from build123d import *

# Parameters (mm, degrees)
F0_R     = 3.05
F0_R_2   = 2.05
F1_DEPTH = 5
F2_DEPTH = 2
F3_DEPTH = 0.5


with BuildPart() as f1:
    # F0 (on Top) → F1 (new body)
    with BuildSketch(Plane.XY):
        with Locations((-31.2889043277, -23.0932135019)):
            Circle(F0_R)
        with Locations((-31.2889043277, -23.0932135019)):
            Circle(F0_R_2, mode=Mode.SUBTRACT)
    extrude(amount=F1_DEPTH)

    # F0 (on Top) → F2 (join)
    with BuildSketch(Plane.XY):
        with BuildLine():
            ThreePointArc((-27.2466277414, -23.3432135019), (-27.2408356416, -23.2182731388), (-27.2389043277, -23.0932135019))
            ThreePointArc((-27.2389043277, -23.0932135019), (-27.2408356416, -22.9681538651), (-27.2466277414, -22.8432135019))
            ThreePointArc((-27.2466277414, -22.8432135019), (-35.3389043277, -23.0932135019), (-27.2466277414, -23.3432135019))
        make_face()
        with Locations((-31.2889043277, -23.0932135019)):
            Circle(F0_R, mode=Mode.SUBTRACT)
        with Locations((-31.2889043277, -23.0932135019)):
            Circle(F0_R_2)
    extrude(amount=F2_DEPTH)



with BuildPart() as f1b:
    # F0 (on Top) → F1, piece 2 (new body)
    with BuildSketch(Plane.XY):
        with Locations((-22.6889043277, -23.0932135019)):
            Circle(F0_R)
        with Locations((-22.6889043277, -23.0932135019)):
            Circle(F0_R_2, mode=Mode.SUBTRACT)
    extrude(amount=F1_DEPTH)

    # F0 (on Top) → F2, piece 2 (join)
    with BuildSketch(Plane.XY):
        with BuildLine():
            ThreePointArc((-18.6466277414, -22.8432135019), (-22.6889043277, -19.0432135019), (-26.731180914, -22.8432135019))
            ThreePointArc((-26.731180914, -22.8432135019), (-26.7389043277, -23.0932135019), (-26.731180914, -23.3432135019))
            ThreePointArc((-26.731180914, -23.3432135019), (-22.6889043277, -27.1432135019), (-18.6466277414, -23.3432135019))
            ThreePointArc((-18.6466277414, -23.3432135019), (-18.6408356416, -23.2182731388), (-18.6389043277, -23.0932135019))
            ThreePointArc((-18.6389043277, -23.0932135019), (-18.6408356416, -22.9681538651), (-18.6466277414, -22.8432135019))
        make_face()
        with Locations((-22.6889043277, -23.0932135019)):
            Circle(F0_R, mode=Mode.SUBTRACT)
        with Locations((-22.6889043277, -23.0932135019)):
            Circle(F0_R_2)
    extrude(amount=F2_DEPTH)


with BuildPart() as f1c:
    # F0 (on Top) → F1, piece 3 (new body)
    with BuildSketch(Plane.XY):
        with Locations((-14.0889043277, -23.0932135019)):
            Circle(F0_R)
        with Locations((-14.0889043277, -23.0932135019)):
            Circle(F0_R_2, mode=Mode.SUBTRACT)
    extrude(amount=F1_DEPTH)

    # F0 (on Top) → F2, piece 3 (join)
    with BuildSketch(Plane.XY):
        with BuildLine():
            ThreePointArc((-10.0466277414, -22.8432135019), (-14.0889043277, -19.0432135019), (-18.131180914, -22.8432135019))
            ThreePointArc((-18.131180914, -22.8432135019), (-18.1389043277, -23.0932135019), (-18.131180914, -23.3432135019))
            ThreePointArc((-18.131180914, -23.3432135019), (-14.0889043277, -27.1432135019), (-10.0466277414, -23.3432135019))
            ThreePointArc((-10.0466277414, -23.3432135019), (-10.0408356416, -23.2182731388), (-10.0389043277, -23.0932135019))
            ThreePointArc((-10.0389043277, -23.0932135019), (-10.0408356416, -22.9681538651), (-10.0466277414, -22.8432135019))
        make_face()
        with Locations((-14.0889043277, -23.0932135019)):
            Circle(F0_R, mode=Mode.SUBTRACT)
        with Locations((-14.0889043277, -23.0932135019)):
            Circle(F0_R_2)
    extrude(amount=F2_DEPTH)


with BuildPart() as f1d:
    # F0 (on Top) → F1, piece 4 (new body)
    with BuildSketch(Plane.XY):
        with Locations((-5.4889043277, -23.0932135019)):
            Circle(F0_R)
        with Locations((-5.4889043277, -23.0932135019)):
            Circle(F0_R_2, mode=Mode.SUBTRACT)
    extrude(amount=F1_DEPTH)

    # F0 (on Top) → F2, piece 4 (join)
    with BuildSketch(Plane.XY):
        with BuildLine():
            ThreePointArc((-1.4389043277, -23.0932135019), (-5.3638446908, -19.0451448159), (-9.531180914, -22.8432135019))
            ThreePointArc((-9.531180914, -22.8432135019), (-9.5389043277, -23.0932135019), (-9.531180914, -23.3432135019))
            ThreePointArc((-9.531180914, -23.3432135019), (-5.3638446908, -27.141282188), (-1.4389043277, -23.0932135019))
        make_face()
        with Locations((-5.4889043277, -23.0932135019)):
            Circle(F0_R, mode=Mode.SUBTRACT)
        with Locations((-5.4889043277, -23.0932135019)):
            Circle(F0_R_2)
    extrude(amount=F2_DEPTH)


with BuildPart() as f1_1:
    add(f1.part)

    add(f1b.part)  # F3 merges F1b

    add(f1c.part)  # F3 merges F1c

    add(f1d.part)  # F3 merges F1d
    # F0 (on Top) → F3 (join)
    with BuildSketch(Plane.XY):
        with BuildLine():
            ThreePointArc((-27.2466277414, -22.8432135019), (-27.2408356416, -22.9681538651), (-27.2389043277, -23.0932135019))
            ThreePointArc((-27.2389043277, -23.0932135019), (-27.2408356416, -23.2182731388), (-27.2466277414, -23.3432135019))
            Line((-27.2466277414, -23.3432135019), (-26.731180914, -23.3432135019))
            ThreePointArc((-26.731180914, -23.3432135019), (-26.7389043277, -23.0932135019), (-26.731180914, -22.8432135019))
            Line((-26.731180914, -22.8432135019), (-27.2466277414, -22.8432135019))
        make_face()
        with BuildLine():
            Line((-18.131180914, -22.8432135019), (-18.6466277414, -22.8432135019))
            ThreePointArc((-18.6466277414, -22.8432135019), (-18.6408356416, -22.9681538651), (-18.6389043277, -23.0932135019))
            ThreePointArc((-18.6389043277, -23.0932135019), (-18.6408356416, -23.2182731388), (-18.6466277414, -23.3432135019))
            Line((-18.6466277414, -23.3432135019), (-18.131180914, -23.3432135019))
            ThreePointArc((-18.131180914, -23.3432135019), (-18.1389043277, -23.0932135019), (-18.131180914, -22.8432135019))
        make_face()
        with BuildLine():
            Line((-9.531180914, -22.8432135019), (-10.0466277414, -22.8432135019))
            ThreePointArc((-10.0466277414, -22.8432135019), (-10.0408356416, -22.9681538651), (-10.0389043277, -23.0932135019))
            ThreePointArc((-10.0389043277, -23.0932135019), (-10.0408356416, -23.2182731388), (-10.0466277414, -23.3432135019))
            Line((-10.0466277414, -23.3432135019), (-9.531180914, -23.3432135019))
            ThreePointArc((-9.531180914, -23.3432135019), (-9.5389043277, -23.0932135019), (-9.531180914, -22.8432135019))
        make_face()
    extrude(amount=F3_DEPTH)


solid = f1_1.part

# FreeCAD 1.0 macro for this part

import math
import FreeCAD as App
import Part
import Sketcher
Q = App.Units.Quantity

doc = App.newDocument("Part")
body = doc.addObject("PartDesign::Body", "Body")

sketch1 = body.newObject("Sketcher::SketchObject", "Sketch")
sketch1.AttachmentSupport = (doc.getObject("XY_Plane"), [""])
sketch1.MapMode = "FlatFace"
sketch1.addGeometry(Part.Circle(App.Vector(-31.3, -23.1, 0), App.Vector(0, 0, 1), 3), False)
sketch1.addGeometry(Part.Circle(App.Vector(-31.3, -23.1, 0), App.Vector(0, 0, 1), 2), False)
sketch1.addConstraint(Sketcher.Constraint("Coincident", 1, 3, 0, 3))
sketch1.addConstraint(Sketcher.Constraint("Diameter", 0, Q("6.1 mm")))
sketch1.addConstraint(Sketcher.Constraint("Diameter", 1, Q("4.1 mm")))
sketch1.addConstraint(Sketcher.Constraint("DistanceX", 0, 3, -1, 1, Q("31.288904 mm")))
sketch1.addConstraint(Sketcher.Constraint("DistanceY", 0, 3, -1, 1, Q("23.093214 mm")))
pad1 = body.newObject("PartDesign::Pad", "Pad")
pad1.Profile = sketch1
pad1.Length = 5

sketch2 = body.newObject("Sketcher::SketchObject", "Sketch001")
sketch2.AttachmentSupport = (doc.getObject("XY_Plane"), [""])
sketch2.MapMode = "FlatFace"
sketch2.addGeometry(Part.ArcOfCircle(Part.Circle(App.Vector(-31.29, -23.09, 0), App.Vector(0, 0, 1), 4.05), math.radians(-3.54), math.radians(0)), False)
sketch2.addGeometry(Part.ArcOfCircle(Part.Circle(App.Vector(-31.29, -23.09, 0), App.Vector(0, 0, 1), 4.05), math.radians(0), math.radians(3.54)), False)
sketch2.addGeometry(Part.ArcOfCircle(Part.Circle(App.Vector(-31.29, -23.09, 0), App.Vector(0, 0, 1), 4.05), math.radians(4), math.radians(356)), False)
sketch2.addGeometry(Part.Circle(App.Vector(-31.29, -23.09, 0), App.Vector(0, 0, 1), 3.05), False)
sketch2.addGeometry(Part.Circle(App.Vector(-31.29, -23.09, 0), App.Vector(0, 0, 1), 2.05), False)
sketch2.addConstraint(Sketcher.Constraint("Tangent", 0, 2, 1, 1))
sketch2.addConstraint(Sketcher.Constraint("Tangent", 1, 2, 2, 1))
sketch2.addConstraint(Sketcher.Constraint("Tangent", 2, 2, 0, 1))
sketch2.addConstraint(Sketcher.Constraint("Coincident", 3, 3, 0, 3))
sketch2.addConstraint(Sketcher.Constraint("Coincident", 4, 3, 0, 3))
sketch2.addConstraint(Sketcher.Constraint("Horizontal", 4, 3, 0, 2))
sketch2.addConstraint(Sketcher.Constraint("Vertical", 1, 2, 2, 2))
sketch2.addConstraint(Sketcher.Constraint("Diameter", 3, Q("6.1 mm")))
sketch2.addConstraint(Sketcher.Constraint("Diameter", 4, Q("4.1 mm")))
sketch2.addConstraint(Sketcher.Constraint("Radius", 0, Q("4.05 mm")))
sketch2.addConstraint(Sketcher.Constraint("DistanceY", 2, 2, 1, 2, Q("0.5 mm")))
sketch2.addConstraint(Sketcher.Constraint("DistanceX", 0, 3, -1, 1, Q("31.288904 mm")))
sketch2.addConstraint(Sketcher.Constraint("DistanceY", 0, 3, -1, 1, Q("23.093214 mm")))
pad2 = body.newObject("PartDesign::Pad", "Pad001")
pad2.Profile = sketch2
pad2.Length = 2
body2 = doc.addObject("PartDesign::Body", "Body001")

sketch3 = body2.newObject("Sketcher::SketchObject", "Sketch002")
sketch3.AttachmentSupport = (doc.getObject("XY_Plane001"), [""])
sketch3.MapMode = "FlatFace"
sketch3.addGeometry(Part.Circle(App.Vector(-22.7, -23.1, 0), App.Vector(0, 0, 1), 3), False)
sketch3.addGeometry(Part.Circle(App.Vector(-22.7, -23.1, 0), App.Vector(0, 0, 1), 2), False)
sketch3.addConstraint(Sketcher.Constraint("Coincident", 1, 3, 0, 3))
sketch3.addConstraint(Sketcher.Constraint("Diameter", 0, Q("6.1 mm")))
sketch3.addConstraint(Sketcher.Constraint("Diameter", 1, Q("4.1 mm")))
sketch3.addConstraint(Sketcher.Constraint("DistanceX", 0, 3, -1, 1, Q("22.688904 mm")))
sketch3.addConstraint(Sketcher.Constraint("DistanceY", 0, 3, -1, 1, Q("23.093214 mm")))
pad3 = body2.newObject("PartDesign::Pad", "Pad002")
pad3.Profile = sketch3
pad3.Length = 5

sketch4 = body2.newObject("Sketcher::SketchObject", "Sketch003")
sketch4.AttachmentSupport = (doc.getObject("XY_Plane001"), [""])
sketch4.MapMode = "FlatFace"
sketch4.addGeometry(Part.ArcOfCircle(Part.Circle(App.Vector(-22.69, -23.09, 0), App.Vector(0, 0, 1), 4.05), math.radians(4), math.radians(176)), False)
sketch4.addGeometry(Part.ArcOfCircle(Part.Circle(App.Vector(-22.69, -23.09, 0), App.Vector(0, 0, 1), 4.05), math.radians(176.46), math.radians(183.54)), False)
sketch4.addGeometry(Part.ArcOfCircle(Part.Circle(App.Vector(-22.69, -23.09, 0), App.Vector(0, 0, 1), 4.05), math.radians(-176), math.radians(-4)), False)
sketch4.addGeometry(Part.ArcOfCircle(Part.Circle(App.Vector(-22.69, -23.09, 0), App.Vector(0, 0, 1), 4.05), math.radians(-3.54), math.radians(0)), False)
sketch4.addGeometry(Part.ArcOfCircle(Part.Circle(App.Vector(-22.69, -23.09, 0), App.Vector(0, 0, 1), 4.05), math.radians(0), math.radians(3.54)), False)
sketch4.addGeometry(Part.Circle(App.Vector(-22.69, -23.09, 0), App.Vector(0, 0, 1), 3.05), False)
sketch4.addGeometry(Part.Circle(App.Vector(-22.69, -23.09, 0), App.Vector(0, 0, 1), 2.05), False)
sketch4.addConstraint(Sketcher.Constraint("Tangent", 0, 2, 1, 1))
sketch4.addConstraint(Sketcher.Constraint("Tangent", 1, 2, 2, 1))
sketch4.addConstraint(Sketcher.Constraint("Tangent", 2, 2, 3, 1))
sketch4.addConstraint(Sketcher.Constraint("Tangent", 3, 2, 4, 1))
sketch4.addConstraint(Sketcher.Constraint("Tangent", 4, 2, 0, 1))
sketch4.addConstraint(Sketcher.Constraint("Coincident", 3, 3, 0, 3))
sketch4.addConstraint(Sketcher.Constraint("Coincident", 5, 3, 0, 3))
sketch4.addConstraint(Sketcher.Constraint("Coincident", 6, 3, 0, 3))
sketch4.addConstraint(Sketcher.Constraint("Horizontal", 1, 2, 2, 2))
sketch4.addConstraint(Sketcher.Constraint("Horizontal", 6, 3, 3, 2))
sketch4.addConstraint(Sketcher.Constraint("Horizontal", 0, 2, 4, 2))
sketch4.addConstraint(Sketcher.Constraint("Vertical", 0, 2, 1, 2))
sketch4.addConstraint(Sketcher.Constraint("Diameter", 5, Q("6.1 mm")))
sketch4.addConstraint(Sketcher.Constraint("Diameter", 6, Q("4.1 mm")))
sketch4.addConstraint(Sketcher.Constraint("Radius", 0, Q("4.05 mm")))
sketch4.addConstraint(Sketcher.Constraint("DistanceY", 1, 2, 0, 2, Q("0.5 mm")))
sketch4.addConstraint(Sketcher.Constraint("DistanceX", 0, 2, -1, 1, Q("26.731181 mm")))
sketch4.addConstraint(Sketcher.Constraint("DistanceY", 0, 3, -1, 1, Q("23.093214 mm")))
pad4 = body2.newObject("PartDesign::Pad", "Pad003")
pad4.Profile = sketch4
pad4.Length = 2
body3 = doc.addObject("PartDesign::Body", "Body002")

sketch5 = body3.newObject("Sketcher::SketchObject", "Sketch004")
sketch5.AttachmentSupport = (doc.getObject("XY_Plane002"), [""])
sketch5.MapMode = "FlatFace"
sketch5.addGeometry(Part.Circle(App.Vector(-14.1, -23.1, 0), App.Vector(0, 0, 1), 3), False)
sketch5.addGeometry(Part.Circle(App.Vector(-14.1, -23.1, 0), App.Vector(0, 0, 1), 2), False)
sketch5.addConstraint(Sketcher.Constraint("Coincident", 1, 3, 0, 3))
sketch5.addConstraint(Sketcher.Constraint("Diameter", 0, Q("6.1 mm")))
sketch5.addConstraint(Sketcher.Constraint("Diameter", 1, Q("4.1 mm")))
sketch5.addConstraint(Sketcher.Constraint("DistanceX", 0, 3, -1, 1, Q("14.088904 mm")))
sketch5.addConstraint(Sketcher.Constraint("DistanceY", 0, 3, -1, 1, Q("23.093214 mm")))
pad5 = body3.newObject("PartDesign::Pad", "Pad004")
pad5.Profile = sketch5
pad5.Length = 5

sketch6 = body3.newObject("Sketcher::SketchObject", "Sketch005")
sketch6.AttachmentSupport = (doc.getObject("XY_Plane002"), [""])
sketch6.MapMode = "FlatFace"
sketch6.addGeometry(Part.ArcOfCircle(Part.Circle(App.Vector(-14.09, -23.09, 0), App.Vector(0, 0, 1), 4.05), math.radians(4), math.radians(176)), False)
sketch6.addGeometry(Part.ArcOfCircle(Part.Circle(App.Vector(-14.09, -23.09, 0), App.Vector(0, 0, 1), 4.05), math.radians(176.46), math.radians(183.54)), False)
sketch6.addGeometry(Part.ArcOfCircle(Part.Circle(App.Vector(-14.09, -23.09, 0), App.Vector(0, 0, 1), 4.05), math.radians(-176), math.radians(-4)), False)
sketch6.addGeometry(Part.ArcOfCircle(Part.Circle(App.Vector(-14.09, -23.09, 0), App.Vector(0, 0, 1), 4.05), math.radians(-3.54), math.radians(0)), False)
sketch6.addGeometry(Part.ArcOfCircle(Part.Circle(App.Vector(-14.09, -23.09, 0), App.Vector(0, 0, 1), 4.05), math.radians(0), math.radians(3.54)), False)
sketch6.addGeometry(Part.Circle(App.Vector(-14.09, -23.09, 0), App.Vector(0, 0, 1), 3.05), False)
sketch6.addGeometry(Part.Circle(App.Vector(-14.09, -23.09, 0), App.Vector(0, 0, 1), 2.05), False)
sketch6.addConstraint(Sketcher.Constraint("Tangent", 0, 2, 1, 1))
sketch6.addConstraint(Sketcher.Constraint("Tangent", 1, 2, 2, 1))
sketch6.addConstraint(Sketcher.Constraint("Tangent", 2, 2, 3, 1))
sketch6.addConstraint(Sketcher.Constraint("Tangent", 3, 2, 4, 1))
sketch6.addConstraint(Sketcher.Constraint("Tangent", 4, 2, 0, 1))
sketch6.addConstraint(Sketcher.Constraint("Coincident", 3, 3, 0, 3))
sketch6.addConstraint(Sketcher.Constraint("Coincident", 5, 3, 0, 3))
sketch6.addConstraint(Sketcher.Constraint("Coincident", 6, 3, 0, 3))
sketch6.addConstraint(Sketcher.Constraint("Horizontal", 1, 2, 2, 2))
sketch6.addConstraint(Sketcher.Constraint("Horizontal", 6, 3, 3, 2))
sketch6.addConstraint(Sketcher.Constraint("Horizontal", 0, 2, 4, 2))
sketch6.addConstraint(Sketcher.Constraint("Vertical", 0, 2, 1, 2))
sketch6.addConstraint(Sketcher.Constraint("Diameter", 5, Q("6.1 mm")))
sketch6.addConstraint(Sketcher.Constraint("Diameter", 6, Q("4.1 mm")))
sketch6.addConstraint(Sketcher.Constraint("Radius", 0, Q("4.05 mm")))
sketch6.addConstraint(Sketcher.Constraint("DistanceY", 1, 2, 0, 2, Q("0.5 mm")))
sketch6.addConstraint(Sketcher.Constraint("DistanceX", 0, 2, -1, 1, Q("18.131181 mm")))
sketch6.addConstraint(Sketcher.Constraint("DistanceY", 0, 3, -1, 1, Q("23.093214 mm")))
pad6 = body3.newObject("PartDesign::Pad", "Pad005")
pad6.Profile = sketch6
pad6.Length = 2
body4 = doc.addObject("PartDesign::Body", "Body003")

sketch7 = body4.newObject("Sketcher::SketchObject", "Sketch006")
sketch7.AttachmentSupport = (doc.getObject("XY_Plane003"), [""])
sketch7.MapMode = "FlatFace"
sketch7.addGeometry(Part.Circle(App.Vector(-5.5, -23.1, 0), App.Vector(0, 0, 1), 3), False)
sketch7.addGeometry(Part.Circle(App.Vector(-5.5, -23.1, 0), App.Vector(0, 0, 1), 2), False)
sketch7.addConstraint(Sketcher.Constraint("Coincident", 1, 3, 0, 3))
sketch7.addConstraint(Sketcher.Constraint("Diameter", 0, Q("6.1 mm")))
sketch7.addConstraint(Sketcher.Constraint("Diameter", 1, Q("4.1 mm")))
sketch7.addConstraint(Sketcher.Constraint("DistanceX", 0, 3, -1, 1, Q("5.488904 mm")))
sketch7.addConstraint(Sketcher.Constraint("DistanceY", 0, 3, -1, 1, Q("23.093214 mm")))
pad7 = body4.newObject("PartDesign::Pad", "Pad006")
pad7.Profile = sketch7
pad7.Length = 5

sketch8 = body4.newObject("Sketcher::SketchObject", "Sketch007")
sketch8.AttachmentSupport = (doc.getObject("XY_Plane003"), [""])
sketch8.MapMode = "FlatFace"
sketch8.addGeometry(Part.ArcOfCircle(Part.Circle(App.Vector(-5.5, -23.1, 0), App.Vector(0, 0, 1), 4), math.radians(0), math.radians(176)), False)
sketch8.addGeometry(Part.ArcOfCircle(Part.Circle(App.Vector(-5.5, -23.1, 0), App.Vector(0, 0, 1), 4.1), math.radians(176.46), math.radians(183.54)), False)
sketch8.addGeometry(Part.ArcOfCircle(Part.Circle(App.Vector(-5.5, -23.1, 0), App.Vector(0, 0, 1), 4), math.radians(-176), math.radians(0)), False)
sketch8.addGeometry(Part.Circle(App.Vector(-5.5, -23.1, 0), App.Vector(0, 0, 1), 3), False)
sketch8.addGeometry(Part.Circle(App.Vector(-5.5, -23.1, 0), App.Vector(0, 0, 1), 2), False)
sketch8.addConstraint(Sketcher.Constraint("Tangent", 0, 2, 1, 1))
sketch8.addConstraint(Sketcher.Constraint("Tangent", 1, 2, 2, 1))
sketch8.addConstraint(Sketcher.Constraint("Tangent", 2, 2, 0, 1))
sketch8.addConstraint(Sketcher.Constraint("Coincident", 3, 3, 0, 3))
sketch8.addConstraint(Sketcher.Constraint("Coincident", 4, 3, 0, 3))
sketch8.addConstraint(Sketcher.Constraint("Horizontal", 4, 3, 2, 2))
sketch8.addConstraint(Sketcher.Constraint("Vertical", 0, 2, 1, 2))
sketch8.addConstraint(Sketcher.Constraint("Diameter", 3, Q("6.1 mm")))
sketch8.addConstraint(Sketcher.Constraint("Diameter", 4, Q("4.1 mm")))
sketch8.addConstraint(Sketcher.Constraint("Radius", 0, Q("4.05 mm")))
sketch8.addConstraint(Sketcher.Constraint("DistanceY", 1, 2, 0, 2, Q("0.5 mm")))
sketch8.addConstraint(Sketcher.Constraint("DistanceX", 0, 2, -1, 1, Q("9.531181 mm")))
sketch8.addConstraint(Sketcher.Constraint("DistanceY", 0, 3, -1, 1, Q("23.093214 mm")))
pad8 = body4.newObject("PartDesign::Pad", "Pad007")
pad8.Profile = sketch8
pad8.Length = 2
body.AllowCompound = True
doc.recompute()

boolean = body.newObject("PartDesign::Boolean", "Boolean")
boolean.Type = "Fuse"
boolean.addObjects([body2])
doc.recompute()

boolean2 = body.newObject("PartDesign::Boolean", "Boolean001")
boolean2.Type = "Fuse"
boolean2.addObjects([body3])
doc.recompute()

boolean3 = body.newObject("PartDesign::Boolean", "Boolean002")
boolean3.Type = "Fuse"
boolean3.addObjects([body4])

sketch9 = body.newObject("Sketcher::SketchObject", "Sketch008")
sketch9.AttachmentSupport = (doc.getObject("XY_Plane"), [""])
sketch9.MapMode = "FlatFace"
sketch9.addGeometry(Part.ArcOfCircle(Part.Circle(App.Vector(-31.29, -23.09, 0), App.Vector(0, 0, 1), 4.05), math.radians(0), math.radians(3.54)), False)
sketch9.addGeometry(Part.ArcOfCircle(Part.Circle(App.Vector(-31.29, -23.09, 0), App.Vector(0, 0, 1), 4.05), math.radians(-3.54), math.radians(0)), False)
sketch9.addGeometry(Part.LineSegment(App.Vector(-27.25, -23.34, 0), App.Vector(-26.73, -23.34, 0)), False)
sketch9.addGeometry(Part.ArcOfCircle(Part.Circle(App.Vector(-22.69, -23.09, 0), App.Vector(0, 0, 1), 4.05), math.radians(176.46), math.radians(183.54)), False)
sketch9.addGeometry(Part.LineSegment(App.Vector(-26.73, -22.84, 0), App.Vector(-27.25, -22.84, 0)), False)
sketch9.addGeometry(Part.LineSegment(App.Vector(-18.13, -22.84, 0), App.Vector(-18.65, -22.84, 0)), False)
sketch9.addGeometry(Part.ArcOfCircle(Part.Circle(App.Vector(-22.69, -23.09, 0), App.Vector(0, 0, 1), 4.05), math.radians(0), math.radians(3.54)), False)
sketch9.addGeometry(Part.ArcOfCircle(Part.Circle(App.Vector(-22.69, -23.09, 0), App.Vector(0, 0, 1), 4.05), math.radians(-3.54), math.radians(0)), False)
sketch9.addGeometry(Part.LineSegment(App.Vector(-18.65, -23.34, 0), App.Vector(-18.13, -23.34, 0)), False)
sketch9.addGeometry(Part.ArcOfCircle(Part.Circle(App.Vector(-14.09, -23.09, 0), App.Vector(0, 0, 1), 4.05), math.radians(176.46), math.radians(183.54)), False)
sketch9.addGeometry(Part.LineSegment(App.Vector(-9.53, -22.84, 0), App.Vector(-10.05, -22.84, 0)), False)
sketch9.addGeometry(Part.ArcOfCircle(Part.Circle(App.Vector(-14.09, -23.09, 0), App.Vector(0, 0, 1), 4.05), math.radians(0), math.radians(3.54)), False)
sketch9.addGeometry(Part.ArcOfCircle(Part.Circle(App.Vector(-14.09, -23.09, 0), App.Vector(0, 0, 1), 4.05), math.radians(-3.54), math.radians(0)), False)
sketch9.addGeometry(Part.LineSegment(App.Vector(-10.05, -23.34, 0), App.Vector(-9.53, -23.34, 0)), False)
sketch9.addGeometry(Part.ArcOfCircle(Part.Circle(App.Vector(-5.49, -23.09, 0), App.Vector(0, 0, 1), 4.05), math.radians(176.46), math.radians(183.54)), False)
sketch9.addConstraint(Sketcher.Constraint("Tangent", 0, 1, 1, 2))
sketch9.addConstraint(Sketcher.Constraint("Coincident", 1, 1, 2, 1))
sketch9.addConstraint(Sketcher.Constraint("Coincident", 2, 2, 3, 2))
sketch9.addConstraint(Sketcher.Constraint("Coincident", 3, 1, 4, 1))
sketch9.addConstraint(Sketcher.Constraint("Coincident", 4, 2, 0, 2))
sketch9.addConstraint(Sketcher.Constraint("Coincident", 5, 2, 6, 2))
sketch9.addConstraint(Sketcher.Constraint("Tangent", 6, 1, 7, 2))
sketch9.addConstraint(Sketcher.Constraint("Coincident", 7, 1, 8, 1))
sketch9.addConstraint(Sketcher.Constraint("Coincident", 8, 2, 9, 2))
sketch9.addConstraint(Sketcher.Constraint("Coincident", 9, 1, 5, 1))
sketch9.addConstraint(Sketcher.Constraint("Coincident", 10, 2, 11, 2))
sketch9.addConstraint(Sketcher.Constraint("Tangent", 11, 1, 12, 2))
sketch9.addConstraint(Sketcher.Constraint("Coincident", 12, 1, 13, 1))
sketch9.addConstraint(Sketcher.Constraint("Coincident", 13, 2, 14, 2))
sketch9.addConstraint(Sketcher.Constraint("Coincident", 14, 1, 10, 1))
sketch9.addConstraint(Sketcher.Constraint("Horizontal", 2))
sketch9.addConstraint(Sketcher.Constraint("Horizontal", 4))
sketch9.addConstraint(Sketcher.Constraint("Horizontal", 5))
sketch9.addConstraint(Sketcher.Constraint("Horizontal", 8))
sketch9.addConstraint(Sketcher.Constraint("Horizontal", 10))
sketch9.addConstraint(Sketcher.Constraint("Horizontal", 13))
sketch9.addConstraint(Sketcher.Constraint("Coincident", 6, 3, 3, 3))
sketch9.addConstraint(Sketcher.Constraint("Coincident", 11, 3, 9, 3))
sketch9.addConstraint(Sketcher.Constraint("Equal", 0, 1))
sketch9.addConstraint(Sketcher.Constraint("Equal", 1, 3))
sketch9.addConstraint(Sketcher.Constraint("Equal", 3, 6))
sketch9.addConstraint(Sketcher.Constraint("Equal", 6, 7))
sketch9.addConstraint(Sketcher.Constraint("Equal", 7, 9))
sketch9.addConstraint(Sketcher.Constraint("Equal", 9, 11))
sketch9.addConstraint(Sketcher.Constraint("Equal", 11, 12))
sketch9.addConstraint(Sketcher.Constraint("Equal", 12, 14))
sketch9.addConstraint(Sketcher.Constraint("Horizontal", 1, 3, 3, 3))
sketch9.addConstraint(Sketcher.Constraint("Horizontal", 7, 3, 9, 3))
sketch9.addConstraint(Sketcher.Constraint("Horizontal", 12, 3, 14, 3))
sketch9.addConstraint(Sketcher.Constraint("Horizontal", 14, 3, 0, 1))
sketch9.addConstraint(Sketcher.Constraint("Horizontal", 4, 2, 5, 2))
sketch9.addConstraint(Sketcher.Constraint("Horizontal", 0, 1, 6, 1))
sketch9.addConstraint(Sketcher.Constraint("Horizontal", 2, 2, 7, 1))
sketch9.addConstraint(Sketcher.Constraint("Horizontal", 9, 1, 10, 2))
sketch9.addConstraint(Sketcher.Constraint("Horizontal", 6, 1, 11, 1))
sketch9.addConstraint(Sketcher.Constraint("Horizontal", 8, 2, 12, 1))
sketch9.addConstraint(Sketcher.Constraint("Vertical", 2, 2, 3, 1))
sketch9.addConstraint(Sketcher.Constraint("Equal", 4, 5))
sketch9.addConstraint(Sketcher.Constraint("Equal", 8, 10))
sketch9.addConstraint(Sketcher.Constraint("Radius", 0, Q("4.05 mm")))
sketch9.addConstraint(Sketcher.Constraint("DistanceX", 1, 3, 3, 3, Q("8.6 mm")))
sketch9.addConstraint(Sketcher.Constraint("DistanceY", 2, 2, 3, 1, Q("0.5 mm")))
sketch9.addConstraint(Sketcher.Constraint("DistanceX", 2, 2, -1, 1, Q("26.731181 mm")))
sketch9.addConstraint(Sketcher.Constraint("DistanceY", 0, 3, -1, 1, Q("23.093214 mm")))
pad9 = body.newObject("PartDesign::Pad", "Pad008")
pad9.Profile = sketch9
pad9.Length = 0.5

doc.recompute()
